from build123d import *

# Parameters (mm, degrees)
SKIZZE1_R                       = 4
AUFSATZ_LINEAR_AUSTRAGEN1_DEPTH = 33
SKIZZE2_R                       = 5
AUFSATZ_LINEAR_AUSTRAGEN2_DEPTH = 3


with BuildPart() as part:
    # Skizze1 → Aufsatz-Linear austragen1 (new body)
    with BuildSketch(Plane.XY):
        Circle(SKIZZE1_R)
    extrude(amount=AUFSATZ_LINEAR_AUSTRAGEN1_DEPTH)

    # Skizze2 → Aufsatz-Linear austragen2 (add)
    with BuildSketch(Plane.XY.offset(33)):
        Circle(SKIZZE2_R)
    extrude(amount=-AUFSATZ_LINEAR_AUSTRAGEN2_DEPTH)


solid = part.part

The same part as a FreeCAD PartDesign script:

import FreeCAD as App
import Part
import Sketcher
from FreeCAD import Vector
Q = App.Units.Quantity

doc = App.newDocument("Part")
body = doc.addObject("PartDesign::Body", "Body")

sketch1 = body.newObject("Sketcher::SketchObject", "Sketch")
sketch1.AttachmentSupport = (doc.getObject("XY_Plane"), [""])
sketch1.MapMode = "FlatFace"
sketch1.addGeometry(Part.Circle(Vector(0, 0, 0), Vector(0, 0, 1), 4), False)
sketch1.addConstraint([
    Sketcher.Constraint("Coincident", 0, 3, -1, 1),
    Sketcher.Constraint("Diameter", 0, Q("8 mm")),
])
pad1 = body.newObject("PartDesign::Pad", "Pad")
pad1.Profile = sketch1
pad1.Length = 33

sketch2 = body.newObject("Sketcher::SketchObject", "Sketch001")
sketch2.AttachmentSupport = (doc.getObject("XY_Plane"), [""])
sketch2.MapMode = "FlatFace"
sketch2.AttachmentOffset = App.Placement(Vector(0, 0, 33), App.Rotation())
sketch2.addGeometry(Part.Circle(Vector(0, 0, 0), Vector(0, 0, 1), 5), False)
sketch2.addConstraint([
    Sketcher.Constraint("Coincident", 0, 3, -1, 1),
    Sketcher.Constraint("Diameter", 0, Q("10 mm")),
])
pad2 = body.newObject("PartDesign::Pad", "Pad001")
pad2.Profile = sketch2
pad2.Length = 3
pad2.Reversed = True

doc.recompute()
